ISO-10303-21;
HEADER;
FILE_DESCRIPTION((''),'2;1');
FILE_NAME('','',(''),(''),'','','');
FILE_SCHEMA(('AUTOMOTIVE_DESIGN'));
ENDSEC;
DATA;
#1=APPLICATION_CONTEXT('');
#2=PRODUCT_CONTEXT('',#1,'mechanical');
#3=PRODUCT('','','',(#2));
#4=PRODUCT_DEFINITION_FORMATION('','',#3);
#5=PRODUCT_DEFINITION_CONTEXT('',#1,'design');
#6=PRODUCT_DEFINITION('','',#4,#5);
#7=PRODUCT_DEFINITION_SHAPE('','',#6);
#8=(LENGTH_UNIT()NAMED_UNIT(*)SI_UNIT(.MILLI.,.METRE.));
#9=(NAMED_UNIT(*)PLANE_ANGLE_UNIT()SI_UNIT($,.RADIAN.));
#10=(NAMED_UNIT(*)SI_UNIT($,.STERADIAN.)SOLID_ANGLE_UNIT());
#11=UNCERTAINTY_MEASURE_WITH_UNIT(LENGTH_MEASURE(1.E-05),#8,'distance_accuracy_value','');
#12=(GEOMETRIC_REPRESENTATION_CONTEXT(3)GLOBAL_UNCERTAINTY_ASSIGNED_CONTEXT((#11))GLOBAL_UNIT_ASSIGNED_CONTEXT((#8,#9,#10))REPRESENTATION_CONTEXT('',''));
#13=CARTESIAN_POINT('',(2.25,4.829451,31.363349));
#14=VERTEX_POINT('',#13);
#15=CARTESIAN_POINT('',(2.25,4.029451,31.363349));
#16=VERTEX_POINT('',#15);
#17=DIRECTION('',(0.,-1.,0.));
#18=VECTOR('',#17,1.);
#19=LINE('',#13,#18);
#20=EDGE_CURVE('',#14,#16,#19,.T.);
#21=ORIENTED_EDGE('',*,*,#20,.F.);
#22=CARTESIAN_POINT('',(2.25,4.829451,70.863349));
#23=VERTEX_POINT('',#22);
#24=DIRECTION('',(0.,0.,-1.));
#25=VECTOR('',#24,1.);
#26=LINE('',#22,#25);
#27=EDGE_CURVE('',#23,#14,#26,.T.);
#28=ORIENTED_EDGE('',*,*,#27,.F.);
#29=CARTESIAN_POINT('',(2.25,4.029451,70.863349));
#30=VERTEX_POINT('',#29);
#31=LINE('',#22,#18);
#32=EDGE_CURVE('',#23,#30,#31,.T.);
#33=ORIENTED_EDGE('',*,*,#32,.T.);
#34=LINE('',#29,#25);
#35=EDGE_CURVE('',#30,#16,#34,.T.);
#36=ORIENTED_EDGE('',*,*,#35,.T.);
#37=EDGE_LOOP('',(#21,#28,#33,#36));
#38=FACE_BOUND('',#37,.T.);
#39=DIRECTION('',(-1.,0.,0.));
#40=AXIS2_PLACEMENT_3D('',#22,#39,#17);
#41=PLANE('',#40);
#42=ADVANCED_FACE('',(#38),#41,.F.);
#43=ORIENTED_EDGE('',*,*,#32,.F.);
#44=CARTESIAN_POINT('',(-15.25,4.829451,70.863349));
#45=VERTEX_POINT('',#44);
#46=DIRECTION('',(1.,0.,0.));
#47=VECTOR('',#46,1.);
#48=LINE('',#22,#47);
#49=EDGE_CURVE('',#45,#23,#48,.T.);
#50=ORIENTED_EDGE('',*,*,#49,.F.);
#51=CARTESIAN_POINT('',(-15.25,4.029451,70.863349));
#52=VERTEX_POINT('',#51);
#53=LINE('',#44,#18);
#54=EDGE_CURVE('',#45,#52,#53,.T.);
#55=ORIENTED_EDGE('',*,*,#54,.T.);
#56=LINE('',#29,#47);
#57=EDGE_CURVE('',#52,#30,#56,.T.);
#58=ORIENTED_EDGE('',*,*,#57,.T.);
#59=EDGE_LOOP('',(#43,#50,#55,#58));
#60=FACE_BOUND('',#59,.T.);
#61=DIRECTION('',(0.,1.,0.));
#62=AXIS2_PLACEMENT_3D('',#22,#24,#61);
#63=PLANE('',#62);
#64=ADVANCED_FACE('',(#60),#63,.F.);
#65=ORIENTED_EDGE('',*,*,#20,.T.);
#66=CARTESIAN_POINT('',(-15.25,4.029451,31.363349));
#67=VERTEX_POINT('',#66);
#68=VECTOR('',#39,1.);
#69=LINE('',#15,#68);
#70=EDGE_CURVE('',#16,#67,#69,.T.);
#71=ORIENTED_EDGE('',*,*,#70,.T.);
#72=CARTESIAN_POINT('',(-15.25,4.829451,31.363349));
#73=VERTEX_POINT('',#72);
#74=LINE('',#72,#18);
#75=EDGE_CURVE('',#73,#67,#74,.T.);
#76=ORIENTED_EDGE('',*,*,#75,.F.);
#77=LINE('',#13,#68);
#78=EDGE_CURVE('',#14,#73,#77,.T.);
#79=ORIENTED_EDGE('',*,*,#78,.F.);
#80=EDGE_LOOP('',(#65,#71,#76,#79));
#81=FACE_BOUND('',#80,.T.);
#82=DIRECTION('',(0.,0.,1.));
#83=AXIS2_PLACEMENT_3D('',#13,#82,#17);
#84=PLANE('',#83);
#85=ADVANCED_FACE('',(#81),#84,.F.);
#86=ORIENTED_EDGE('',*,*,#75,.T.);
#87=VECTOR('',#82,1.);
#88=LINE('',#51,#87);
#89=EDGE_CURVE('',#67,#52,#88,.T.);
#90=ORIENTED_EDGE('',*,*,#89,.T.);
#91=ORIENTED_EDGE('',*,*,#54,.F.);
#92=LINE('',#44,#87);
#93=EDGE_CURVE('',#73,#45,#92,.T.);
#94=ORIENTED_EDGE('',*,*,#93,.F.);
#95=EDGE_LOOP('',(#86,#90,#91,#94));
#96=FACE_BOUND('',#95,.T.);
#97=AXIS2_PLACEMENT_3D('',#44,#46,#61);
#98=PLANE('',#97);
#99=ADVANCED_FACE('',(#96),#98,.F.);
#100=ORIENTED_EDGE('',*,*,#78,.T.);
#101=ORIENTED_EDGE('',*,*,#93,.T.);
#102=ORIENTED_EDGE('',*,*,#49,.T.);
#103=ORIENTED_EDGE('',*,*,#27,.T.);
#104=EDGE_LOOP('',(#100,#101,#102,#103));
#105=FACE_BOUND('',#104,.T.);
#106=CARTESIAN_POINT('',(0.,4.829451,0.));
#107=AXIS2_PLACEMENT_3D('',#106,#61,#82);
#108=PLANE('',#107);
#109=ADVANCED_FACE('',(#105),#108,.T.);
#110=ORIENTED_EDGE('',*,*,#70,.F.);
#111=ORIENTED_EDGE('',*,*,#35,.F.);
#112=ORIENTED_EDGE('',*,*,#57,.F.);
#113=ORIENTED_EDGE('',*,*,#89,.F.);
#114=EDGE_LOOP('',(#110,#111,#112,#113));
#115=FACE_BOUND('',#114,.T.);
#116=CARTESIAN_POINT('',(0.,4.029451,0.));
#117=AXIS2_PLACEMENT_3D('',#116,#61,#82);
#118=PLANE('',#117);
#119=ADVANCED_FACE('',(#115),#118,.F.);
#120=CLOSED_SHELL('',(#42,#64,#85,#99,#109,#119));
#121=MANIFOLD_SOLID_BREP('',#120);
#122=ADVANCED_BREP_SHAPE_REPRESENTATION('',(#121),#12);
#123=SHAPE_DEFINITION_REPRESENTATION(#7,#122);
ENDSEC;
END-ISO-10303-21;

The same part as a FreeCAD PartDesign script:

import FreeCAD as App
import Part
import Sketcher

V = App.Vector
Q = App.Units.Quantity


def add_polygon(sketch, points):
    """Adds a closed chain of lines whose ends are joined by coincident constraints."""
    first, n = sketch.GeometryCount, len(points)
    for a, b in zip(points, points[1:] + points[:1]):
        sketch.addGeometry(Part.LineSegment(App.Vector(*a, 0), App.Vector(*b, 0)), False)
    for i in range(n):
        sketch.addConstraint(Sketcher.Constraint("Coincident", first + i, 2, first + (i + 1) % n, 1))

doc = App.newDocument("Part")
body = doc.addObject("PartDesign::Body", "Body")

sketch1 = body.newObject("Sketcher::SketchObject", "Sketch")
sketch1.AttachmentSupport = (doc.getObject("XZ_Plane"), [""])
sketch1.MapMode = "FlatFace"
sketch1.AttachmentOffset = App.Placement(V(0, 0, -4.029451), App.Rotation())
add_polygon(sketch1, [(-15, 31), (-15, 71), (2, 71), (2, 31)])
sketch1.addConstraint([
    Sketcher.Constraint("Vertical", 0),
    Sketcher.Constraint("Horizontal", 1),
    Sketcher.Constraint("Vertical", 2),
    Sketcher.Constraint("Horizontal", 3),
    Sketcher.Constraint("DistanceX", 1, 1, 1, 2, Q("17.5 mm")),
    Sketcher.Constraint("DistanceY", 0, 1, 0, 2, Q("39.5 mm")),
    Sketcher.Constraint("DistanceX", 0, 2, -1, 1, Q("15.25 mm")),
    Sketcher.Constraint("DistanceY", -1, 1, 0, 2, Q("70.863349 mm")),
])
pad1 = body.newObject("PartDesign::Pad", "Pad")
pad1.Profile = sketch1
pad1.Length = 0.8
pad1.Reversed = True

doc.recompute()
